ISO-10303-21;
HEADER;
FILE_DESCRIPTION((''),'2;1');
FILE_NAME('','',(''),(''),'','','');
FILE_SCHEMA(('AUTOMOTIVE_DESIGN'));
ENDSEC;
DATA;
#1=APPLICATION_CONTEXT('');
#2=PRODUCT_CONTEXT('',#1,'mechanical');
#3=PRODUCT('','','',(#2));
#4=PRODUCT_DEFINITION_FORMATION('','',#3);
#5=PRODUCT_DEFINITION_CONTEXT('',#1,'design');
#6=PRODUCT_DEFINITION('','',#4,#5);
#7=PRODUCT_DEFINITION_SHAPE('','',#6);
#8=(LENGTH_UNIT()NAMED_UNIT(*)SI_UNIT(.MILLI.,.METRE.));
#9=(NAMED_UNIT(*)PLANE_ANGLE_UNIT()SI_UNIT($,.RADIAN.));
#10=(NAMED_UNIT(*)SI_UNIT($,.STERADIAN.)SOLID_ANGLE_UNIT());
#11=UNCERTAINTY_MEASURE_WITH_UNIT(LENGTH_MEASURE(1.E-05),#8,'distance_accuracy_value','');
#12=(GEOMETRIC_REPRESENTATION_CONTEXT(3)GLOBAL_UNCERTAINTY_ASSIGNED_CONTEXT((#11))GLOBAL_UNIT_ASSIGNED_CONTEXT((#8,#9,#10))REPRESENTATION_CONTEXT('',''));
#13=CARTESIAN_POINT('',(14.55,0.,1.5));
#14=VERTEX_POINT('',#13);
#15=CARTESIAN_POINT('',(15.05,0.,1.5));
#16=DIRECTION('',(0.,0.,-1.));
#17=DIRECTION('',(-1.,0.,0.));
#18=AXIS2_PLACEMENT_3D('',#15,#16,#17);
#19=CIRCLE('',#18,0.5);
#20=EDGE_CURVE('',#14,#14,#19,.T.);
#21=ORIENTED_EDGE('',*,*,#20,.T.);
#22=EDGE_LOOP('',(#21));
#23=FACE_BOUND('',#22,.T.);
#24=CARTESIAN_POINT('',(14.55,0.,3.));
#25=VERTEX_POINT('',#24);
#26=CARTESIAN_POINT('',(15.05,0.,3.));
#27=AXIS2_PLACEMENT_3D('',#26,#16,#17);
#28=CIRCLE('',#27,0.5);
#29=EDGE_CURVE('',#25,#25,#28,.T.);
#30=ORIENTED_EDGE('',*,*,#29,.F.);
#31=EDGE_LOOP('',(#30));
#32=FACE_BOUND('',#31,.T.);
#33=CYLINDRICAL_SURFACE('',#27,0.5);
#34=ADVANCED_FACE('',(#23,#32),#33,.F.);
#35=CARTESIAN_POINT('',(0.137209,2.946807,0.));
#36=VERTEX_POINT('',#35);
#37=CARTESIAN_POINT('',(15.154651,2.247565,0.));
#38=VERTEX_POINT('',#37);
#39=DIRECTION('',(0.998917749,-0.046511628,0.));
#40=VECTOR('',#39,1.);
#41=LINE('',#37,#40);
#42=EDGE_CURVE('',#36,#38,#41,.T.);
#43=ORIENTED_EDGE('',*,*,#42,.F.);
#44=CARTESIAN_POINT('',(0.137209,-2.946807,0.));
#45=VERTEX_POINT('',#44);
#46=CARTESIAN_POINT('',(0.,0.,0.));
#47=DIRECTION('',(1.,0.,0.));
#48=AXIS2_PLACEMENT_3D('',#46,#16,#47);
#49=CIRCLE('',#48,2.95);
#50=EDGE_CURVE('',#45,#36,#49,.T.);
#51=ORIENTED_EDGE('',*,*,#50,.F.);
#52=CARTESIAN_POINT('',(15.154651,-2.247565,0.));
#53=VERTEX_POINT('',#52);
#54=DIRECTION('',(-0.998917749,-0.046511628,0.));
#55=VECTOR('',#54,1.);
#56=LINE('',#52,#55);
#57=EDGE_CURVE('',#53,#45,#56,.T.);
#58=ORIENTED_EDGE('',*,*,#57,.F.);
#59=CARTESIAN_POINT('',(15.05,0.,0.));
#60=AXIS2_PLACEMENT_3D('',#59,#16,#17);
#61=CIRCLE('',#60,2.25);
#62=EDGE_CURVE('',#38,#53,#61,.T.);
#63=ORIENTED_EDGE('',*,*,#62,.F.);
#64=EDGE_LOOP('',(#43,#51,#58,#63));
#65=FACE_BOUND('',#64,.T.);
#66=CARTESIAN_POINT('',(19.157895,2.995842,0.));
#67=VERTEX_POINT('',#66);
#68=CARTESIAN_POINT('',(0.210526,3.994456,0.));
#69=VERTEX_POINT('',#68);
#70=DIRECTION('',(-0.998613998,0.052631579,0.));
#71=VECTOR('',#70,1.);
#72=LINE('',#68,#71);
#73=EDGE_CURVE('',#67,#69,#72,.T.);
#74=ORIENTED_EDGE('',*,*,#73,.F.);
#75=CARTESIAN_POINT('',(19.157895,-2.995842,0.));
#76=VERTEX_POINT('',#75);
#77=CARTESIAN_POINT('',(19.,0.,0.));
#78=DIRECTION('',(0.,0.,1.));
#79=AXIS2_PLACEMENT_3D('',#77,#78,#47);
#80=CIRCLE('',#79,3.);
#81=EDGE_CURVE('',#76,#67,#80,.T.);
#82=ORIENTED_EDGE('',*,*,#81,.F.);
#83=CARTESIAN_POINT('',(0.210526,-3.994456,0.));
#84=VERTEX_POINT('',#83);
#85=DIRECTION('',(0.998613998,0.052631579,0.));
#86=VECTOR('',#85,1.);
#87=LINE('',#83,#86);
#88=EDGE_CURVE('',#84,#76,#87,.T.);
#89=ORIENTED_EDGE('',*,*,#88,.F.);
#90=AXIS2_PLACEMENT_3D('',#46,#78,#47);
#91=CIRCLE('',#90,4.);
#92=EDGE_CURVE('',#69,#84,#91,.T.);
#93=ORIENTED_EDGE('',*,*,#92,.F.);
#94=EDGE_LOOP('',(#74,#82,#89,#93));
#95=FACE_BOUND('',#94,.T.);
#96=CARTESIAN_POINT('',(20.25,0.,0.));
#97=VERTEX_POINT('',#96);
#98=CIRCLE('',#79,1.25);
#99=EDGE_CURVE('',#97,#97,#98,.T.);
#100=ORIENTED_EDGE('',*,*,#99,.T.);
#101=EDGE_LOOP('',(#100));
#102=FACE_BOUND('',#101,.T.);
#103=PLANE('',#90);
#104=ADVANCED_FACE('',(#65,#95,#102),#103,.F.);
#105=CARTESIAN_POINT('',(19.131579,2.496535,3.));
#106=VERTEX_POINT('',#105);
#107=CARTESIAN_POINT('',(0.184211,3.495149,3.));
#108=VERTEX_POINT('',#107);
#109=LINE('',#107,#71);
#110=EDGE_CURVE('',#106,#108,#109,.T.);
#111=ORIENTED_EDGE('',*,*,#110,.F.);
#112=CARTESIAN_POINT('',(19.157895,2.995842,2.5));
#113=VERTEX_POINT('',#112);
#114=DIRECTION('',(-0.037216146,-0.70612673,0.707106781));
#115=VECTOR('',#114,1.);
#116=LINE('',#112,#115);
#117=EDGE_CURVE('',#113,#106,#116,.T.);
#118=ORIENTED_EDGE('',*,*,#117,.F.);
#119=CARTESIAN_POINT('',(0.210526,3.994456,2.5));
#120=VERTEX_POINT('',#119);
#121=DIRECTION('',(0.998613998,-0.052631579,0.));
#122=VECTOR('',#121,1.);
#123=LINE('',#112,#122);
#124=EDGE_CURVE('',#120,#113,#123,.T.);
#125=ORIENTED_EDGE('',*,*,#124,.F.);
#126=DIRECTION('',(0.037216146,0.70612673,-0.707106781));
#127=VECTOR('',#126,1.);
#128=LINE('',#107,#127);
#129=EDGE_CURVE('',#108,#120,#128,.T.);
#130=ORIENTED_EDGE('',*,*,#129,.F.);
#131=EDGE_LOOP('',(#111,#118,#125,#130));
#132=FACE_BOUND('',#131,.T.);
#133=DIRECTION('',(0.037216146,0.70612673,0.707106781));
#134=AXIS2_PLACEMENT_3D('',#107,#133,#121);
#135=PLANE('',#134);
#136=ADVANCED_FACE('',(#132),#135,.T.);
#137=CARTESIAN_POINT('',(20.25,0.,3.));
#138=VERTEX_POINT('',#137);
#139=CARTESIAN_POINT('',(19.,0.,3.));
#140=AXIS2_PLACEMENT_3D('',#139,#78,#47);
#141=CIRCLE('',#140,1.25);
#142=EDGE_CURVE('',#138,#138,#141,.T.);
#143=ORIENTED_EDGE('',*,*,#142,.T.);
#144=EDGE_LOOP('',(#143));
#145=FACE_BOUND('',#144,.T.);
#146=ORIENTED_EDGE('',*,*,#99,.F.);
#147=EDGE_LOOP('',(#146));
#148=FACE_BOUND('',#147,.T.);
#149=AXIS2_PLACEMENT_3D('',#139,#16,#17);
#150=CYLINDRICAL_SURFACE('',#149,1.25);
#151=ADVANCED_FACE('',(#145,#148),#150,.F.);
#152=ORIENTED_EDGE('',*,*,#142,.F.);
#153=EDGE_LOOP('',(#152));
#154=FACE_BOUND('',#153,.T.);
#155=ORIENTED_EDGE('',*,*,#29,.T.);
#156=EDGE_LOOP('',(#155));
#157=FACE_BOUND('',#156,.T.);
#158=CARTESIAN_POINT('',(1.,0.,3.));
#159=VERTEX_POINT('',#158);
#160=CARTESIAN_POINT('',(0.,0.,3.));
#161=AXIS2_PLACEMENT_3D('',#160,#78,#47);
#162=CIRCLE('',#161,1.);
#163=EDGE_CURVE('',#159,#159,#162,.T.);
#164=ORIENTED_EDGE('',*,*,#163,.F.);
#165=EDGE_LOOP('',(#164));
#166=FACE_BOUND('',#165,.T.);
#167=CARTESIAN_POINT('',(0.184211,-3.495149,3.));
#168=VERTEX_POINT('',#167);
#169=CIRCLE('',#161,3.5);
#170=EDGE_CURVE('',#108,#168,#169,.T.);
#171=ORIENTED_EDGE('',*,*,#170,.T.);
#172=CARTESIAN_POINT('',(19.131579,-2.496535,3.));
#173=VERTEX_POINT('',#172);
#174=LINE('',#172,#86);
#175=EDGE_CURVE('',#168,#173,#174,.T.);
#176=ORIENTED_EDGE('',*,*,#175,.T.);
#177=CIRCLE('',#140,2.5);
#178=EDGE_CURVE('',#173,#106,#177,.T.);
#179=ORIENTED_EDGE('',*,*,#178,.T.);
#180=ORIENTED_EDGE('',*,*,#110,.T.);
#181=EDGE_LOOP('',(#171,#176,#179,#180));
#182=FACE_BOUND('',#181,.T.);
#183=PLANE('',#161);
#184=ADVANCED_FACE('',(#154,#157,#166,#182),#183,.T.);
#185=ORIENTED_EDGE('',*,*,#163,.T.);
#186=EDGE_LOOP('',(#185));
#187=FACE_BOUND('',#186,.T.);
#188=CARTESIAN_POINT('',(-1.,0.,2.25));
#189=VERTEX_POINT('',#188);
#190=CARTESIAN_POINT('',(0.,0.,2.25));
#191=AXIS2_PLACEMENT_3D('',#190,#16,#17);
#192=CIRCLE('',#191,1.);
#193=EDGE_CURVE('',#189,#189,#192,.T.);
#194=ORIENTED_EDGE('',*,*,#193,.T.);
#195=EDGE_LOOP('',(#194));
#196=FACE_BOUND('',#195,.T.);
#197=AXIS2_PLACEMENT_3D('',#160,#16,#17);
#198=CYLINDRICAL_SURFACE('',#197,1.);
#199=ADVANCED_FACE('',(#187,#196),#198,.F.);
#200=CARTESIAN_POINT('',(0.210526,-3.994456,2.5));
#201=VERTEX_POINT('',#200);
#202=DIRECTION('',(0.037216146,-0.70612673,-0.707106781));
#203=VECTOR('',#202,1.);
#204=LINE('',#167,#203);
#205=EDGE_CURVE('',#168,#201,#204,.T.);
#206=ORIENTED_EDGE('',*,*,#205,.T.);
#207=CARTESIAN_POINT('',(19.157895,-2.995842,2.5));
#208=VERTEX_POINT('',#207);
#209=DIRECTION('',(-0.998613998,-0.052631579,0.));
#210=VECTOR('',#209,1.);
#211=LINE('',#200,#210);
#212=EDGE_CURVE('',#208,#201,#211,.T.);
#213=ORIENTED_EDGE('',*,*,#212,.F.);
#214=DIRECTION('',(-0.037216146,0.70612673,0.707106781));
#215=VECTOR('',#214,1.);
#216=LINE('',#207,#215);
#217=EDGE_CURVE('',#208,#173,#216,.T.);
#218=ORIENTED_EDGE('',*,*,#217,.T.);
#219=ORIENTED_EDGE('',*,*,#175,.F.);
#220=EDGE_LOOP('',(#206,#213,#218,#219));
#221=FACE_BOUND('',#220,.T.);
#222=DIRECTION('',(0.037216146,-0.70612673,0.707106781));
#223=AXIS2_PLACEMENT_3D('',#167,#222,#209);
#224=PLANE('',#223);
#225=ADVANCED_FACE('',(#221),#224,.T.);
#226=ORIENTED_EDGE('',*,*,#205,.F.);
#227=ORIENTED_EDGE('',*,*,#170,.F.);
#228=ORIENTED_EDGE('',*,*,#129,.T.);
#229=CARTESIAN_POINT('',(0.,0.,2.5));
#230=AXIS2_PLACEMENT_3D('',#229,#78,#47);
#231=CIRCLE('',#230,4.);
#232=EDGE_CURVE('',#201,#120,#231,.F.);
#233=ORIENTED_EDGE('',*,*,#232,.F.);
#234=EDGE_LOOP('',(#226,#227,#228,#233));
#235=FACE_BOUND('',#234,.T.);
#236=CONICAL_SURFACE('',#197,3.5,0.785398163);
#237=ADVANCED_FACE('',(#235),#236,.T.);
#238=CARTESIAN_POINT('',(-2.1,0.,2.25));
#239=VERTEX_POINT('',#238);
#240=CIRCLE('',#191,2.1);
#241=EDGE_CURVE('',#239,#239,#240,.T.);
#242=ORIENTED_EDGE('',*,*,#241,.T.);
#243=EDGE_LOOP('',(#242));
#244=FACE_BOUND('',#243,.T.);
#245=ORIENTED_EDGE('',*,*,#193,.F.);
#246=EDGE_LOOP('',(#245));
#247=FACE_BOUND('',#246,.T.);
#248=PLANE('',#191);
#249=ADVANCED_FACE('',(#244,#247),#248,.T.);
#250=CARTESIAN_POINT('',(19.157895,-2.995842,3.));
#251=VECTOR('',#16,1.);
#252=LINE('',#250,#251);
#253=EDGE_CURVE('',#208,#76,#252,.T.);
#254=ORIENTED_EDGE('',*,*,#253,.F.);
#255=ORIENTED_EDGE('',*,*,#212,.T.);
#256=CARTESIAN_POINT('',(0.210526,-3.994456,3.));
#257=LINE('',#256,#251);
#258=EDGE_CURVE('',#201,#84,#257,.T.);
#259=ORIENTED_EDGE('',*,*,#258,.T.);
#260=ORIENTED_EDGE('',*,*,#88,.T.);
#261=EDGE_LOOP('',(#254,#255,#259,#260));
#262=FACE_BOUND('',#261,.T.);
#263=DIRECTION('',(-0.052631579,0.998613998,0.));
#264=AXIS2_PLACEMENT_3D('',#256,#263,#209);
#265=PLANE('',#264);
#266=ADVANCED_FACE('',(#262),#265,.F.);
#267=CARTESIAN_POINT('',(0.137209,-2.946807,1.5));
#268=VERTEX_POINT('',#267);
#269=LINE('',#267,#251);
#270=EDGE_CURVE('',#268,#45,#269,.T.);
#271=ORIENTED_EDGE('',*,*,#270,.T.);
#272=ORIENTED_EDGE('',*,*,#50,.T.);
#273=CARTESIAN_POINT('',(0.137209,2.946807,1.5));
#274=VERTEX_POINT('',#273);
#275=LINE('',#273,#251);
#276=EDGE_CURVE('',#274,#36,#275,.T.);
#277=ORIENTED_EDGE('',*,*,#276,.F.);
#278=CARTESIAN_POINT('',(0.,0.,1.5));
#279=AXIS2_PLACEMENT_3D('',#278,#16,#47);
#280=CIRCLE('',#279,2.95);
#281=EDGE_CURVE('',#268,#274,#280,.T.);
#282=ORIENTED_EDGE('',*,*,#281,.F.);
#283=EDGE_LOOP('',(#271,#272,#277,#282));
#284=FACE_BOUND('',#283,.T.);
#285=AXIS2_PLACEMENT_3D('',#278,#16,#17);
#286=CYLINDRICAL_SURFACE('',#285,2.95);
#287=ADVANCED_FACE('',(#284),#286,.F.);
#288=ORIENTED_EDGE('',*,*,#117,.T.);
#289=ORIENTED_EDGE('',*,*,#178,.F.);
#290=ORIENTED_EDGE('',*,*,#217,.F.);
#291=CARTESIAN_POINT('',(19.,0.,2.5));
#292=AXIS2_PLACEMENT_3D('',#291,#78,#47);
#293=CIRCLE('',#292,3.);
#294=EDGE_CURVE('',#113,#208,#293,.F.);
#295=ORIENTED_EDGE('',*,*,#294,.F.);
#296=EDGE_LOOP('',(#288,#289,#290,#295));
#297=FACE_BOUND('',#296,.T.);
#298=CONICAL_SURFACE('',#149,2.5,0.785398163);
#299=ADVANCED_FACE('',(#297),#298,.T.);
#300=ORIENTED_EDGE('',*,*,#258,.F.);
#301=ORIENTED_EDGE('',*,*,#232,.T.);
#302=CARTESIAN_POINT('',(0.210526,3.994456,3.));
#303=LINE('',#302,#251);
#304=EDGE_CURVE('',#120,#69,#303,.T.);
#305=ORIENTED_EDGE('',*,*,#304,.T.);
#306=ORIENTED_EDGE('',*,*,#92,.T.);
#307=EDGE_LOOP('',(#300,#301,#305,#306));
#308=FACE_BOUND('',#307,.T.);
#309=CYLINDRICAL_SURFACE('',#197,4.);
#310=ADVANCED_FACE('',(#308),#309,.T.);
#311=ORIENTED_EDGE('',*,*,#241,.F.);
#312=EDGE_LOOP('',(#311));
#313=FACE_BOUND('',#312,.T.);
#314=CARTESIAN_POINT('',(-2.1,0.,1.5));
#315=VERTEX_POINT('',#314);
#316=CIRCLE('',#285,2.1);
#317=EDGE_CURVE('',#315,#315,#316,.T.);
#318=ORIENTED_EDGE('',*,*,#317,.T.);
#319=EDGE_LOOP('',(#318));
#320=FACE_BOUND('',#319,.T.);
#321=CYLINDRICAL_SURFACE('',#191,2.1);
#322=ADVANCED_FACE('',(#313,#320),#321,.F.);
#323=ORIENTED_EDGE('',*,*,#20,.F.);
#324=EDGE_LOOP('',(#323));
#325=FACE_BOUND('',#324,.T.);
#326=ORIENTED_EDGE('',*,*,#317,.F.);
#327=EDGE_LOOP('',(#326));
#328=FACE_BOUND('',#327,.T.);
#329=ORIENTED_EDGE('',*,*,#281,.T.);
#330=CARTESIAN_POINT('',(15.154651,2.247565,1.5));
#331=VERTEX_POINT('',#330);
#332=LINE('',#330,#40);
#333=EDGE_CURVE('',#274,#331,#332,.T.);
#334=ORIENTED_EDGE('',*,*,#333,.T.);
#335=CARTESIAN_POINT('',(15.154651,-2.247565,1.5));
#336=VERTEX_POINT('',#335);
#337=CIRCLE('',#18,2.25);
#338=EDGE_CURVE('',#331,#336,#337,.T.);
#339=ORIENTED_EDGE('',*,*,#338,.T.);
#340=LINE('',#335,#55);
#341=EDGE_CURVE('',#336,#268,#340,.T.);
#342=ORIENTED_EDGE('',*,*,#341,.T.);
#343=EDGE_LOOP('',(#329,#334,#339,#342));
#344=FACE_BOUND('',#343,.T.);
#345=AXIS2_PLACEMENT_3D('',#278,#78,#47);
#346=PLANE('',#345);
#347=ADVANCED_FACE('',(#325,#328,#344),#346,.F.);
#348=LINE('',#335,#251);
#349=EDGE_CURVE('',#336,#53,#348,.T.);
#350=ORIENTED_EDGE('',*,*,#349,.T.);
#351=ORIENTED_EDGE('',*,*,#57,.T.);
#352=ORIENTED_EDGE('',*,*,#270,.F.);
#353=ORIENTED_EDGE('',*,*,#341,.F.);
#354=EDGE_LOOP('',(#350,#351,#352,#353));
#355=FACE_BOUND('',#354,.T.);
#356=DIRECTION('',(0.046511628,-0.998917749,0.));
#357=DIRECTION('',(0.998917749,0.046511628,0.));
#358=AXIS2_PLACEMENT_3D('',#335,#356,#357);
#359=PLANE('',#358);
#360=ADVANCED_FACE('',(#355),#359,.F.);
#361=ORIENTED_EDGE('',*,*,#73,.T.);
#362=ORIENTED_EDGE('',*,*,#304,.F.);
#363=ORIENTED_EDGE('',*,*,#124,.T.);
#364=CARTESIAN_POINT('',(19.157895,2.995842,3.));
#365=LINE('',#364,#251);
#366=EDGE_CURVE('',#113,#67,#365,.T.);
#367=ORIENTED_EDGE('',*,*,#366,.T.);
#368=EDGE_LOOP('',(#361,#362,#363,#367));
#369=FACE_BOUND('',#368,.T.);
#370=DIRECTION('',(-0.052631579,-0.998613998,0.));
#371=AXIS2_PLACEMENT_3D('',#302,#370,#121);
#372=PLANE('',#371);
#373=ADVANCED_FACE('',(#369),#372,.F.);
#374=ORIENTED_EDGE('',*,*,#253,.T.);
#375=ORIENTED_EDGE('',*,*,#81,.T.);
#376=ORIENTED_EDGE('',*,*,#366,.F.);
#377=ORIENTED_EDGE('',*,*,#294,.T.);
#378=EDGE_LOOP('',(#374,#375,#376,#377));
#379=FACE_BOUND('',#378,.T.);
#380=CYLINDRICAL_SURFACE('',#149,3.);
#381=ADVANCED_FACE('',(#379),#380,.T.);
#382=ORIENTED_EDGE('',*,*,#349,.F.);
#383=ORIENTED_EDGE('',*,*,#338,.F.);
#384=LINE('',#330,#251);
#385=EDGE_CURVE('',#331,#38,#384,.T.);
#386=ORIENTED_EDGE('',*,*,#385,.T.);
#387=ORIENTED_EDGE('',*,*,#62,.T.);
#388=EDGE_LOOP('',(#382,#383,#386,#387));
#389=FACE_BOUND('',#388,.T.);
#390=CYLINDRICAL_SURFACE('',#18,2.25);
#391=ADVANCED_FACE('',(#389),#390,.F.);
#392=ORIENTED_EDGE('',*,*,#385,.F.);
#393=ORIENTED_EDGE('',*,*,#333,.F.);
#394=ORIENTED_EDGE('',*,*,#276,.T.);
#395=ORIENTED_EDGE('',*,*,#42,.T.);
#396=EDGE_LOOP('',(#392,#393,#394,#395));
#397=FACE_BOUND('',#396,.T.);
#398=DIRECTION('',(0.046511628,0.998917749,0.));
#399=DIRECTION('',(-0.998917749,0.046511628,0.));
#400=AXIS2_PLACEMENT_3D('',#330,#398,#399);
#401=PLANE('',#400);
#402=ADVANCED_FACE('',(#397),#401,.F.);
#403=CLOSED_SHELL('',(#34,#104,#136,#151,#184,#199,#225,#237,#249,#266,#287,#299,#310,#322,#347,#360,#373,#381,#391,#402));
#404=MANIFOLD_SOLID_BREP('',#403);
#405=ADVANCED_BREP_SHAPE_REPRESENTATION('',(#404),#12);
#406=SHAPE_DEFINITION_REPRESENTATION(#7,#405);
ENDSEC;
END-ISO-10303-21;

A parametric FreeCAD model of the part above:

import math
import FreeCAD as App
import Part
import Sketcher
from FreeCAD import Vector


def edges_at(feature, points):
    """Names of the edges that pass closest to the given points."""
    edges = feature.Shape.Edges
    near = lambda p: min(range(len(edges)), key=lambda i: edges[i].distToShape(Part.Vertex(*p))[0])
    return sorted({f"Edge{near(p) + 1}" for p in points})

doc = App.newDocument("Part")
body = doc.addObject("PartDesign::Body", "Body")

# Sketch on XY plane
sketch1 = body.newObject("Sketcher::SketchObject", "Sketch")
sketch1.AttachmentSupport = (doc.getObject("XY_Plane"), [""])
sketch1.MapMode = "FlatFace"
sketch1.addGeometry([
    Part.LineSegment(Vector(19.2, 3, 0), Vector(0.2, 4, 0)),  # 0
    Part.ArcOfCircle(Part.Circle(Vector(0, 0, 0), Vector(0, 0, 1), 4), math.radians(87), math.radians(273)),  # 1
    Part.LineSegment(Vector(0.2, -4, 0), Vector(19.2, -3, 0)),  # 2
    Part.ArcOfCircle(Part.Circle(Vector(19, 0, 0), Vector(0, 0, 1), 3), math.radians(-87), math.radians(87)),  # 3
    Part.Circle(Vector(19, 0, 0), Vector(0, 0, 1), 1.2),  # 4
    Part.Circle(Vector(0, 0, 0), Vector(0, 0, 1), 1),  # 5
], False)
sketch1.addConstraint([
    Sketcher.Constraint("Tangent", 0, 2, 1, 1),
    Sketcher.Constraint("Tangent", 1, 2, 2, 1),
    Sketcher.Constraint("Tangent", 2, 2, 3, 1),
    Sketcher.Constraint("Tangent", 3, 2, 0, 1),
    Sketcher.Constraint("Coincident", 1, 3, -1, 1),
    Sketcher.Constraint("Coincident", 5, 3, -1, 1),
    Sketcher.Constraint("Coincident", 4, 3, 3, 3),
    Sketcher.Constraint("PointOnObject", 3, 3, -1),
    Sketcher.Constraint("Diameter", 5, 2.0),
    Sketcher.Constraint("Radius", 1, 4.0),
    Sketcher.Constraint("Radius", 3, 3.0),
    Sketcher.Constraint("Diameter", 4, 2.5),
    Sketcher.Constraint("DistanceX", -1, 1, 3, 3, 19.0),
])
pad1 = body.newObject("PartDesign::Pad", "Pad")
pad1.Profile = sketch1
pad1.Length = 3

# Sketch on XY plane
sketch2 = body.newObject("Sketcher::SketchObject", "Sketch001")
sketch2.AttachmentSupport = (doc.getObject("XY_Plane"), [""])
sketch2.MapMode = "FlatFace"
sketch2.addGeometry([
    Part.LineSegment(Vector(0.1, 2.9, 0), Vector(15.2, 2.2, 0)),
    Part.ArcOfCircle(Part.Circle(Vector(15.1, 0, 0), Vector(0, 0, 1), 2.2), math.radians(-87), math.radians(87)),
    Part.LineSegment(Vector(15.2, -2.2, 0), Vector(0.1, -2.9, 0)),
    Part.ArcOfCircle(Part.Circle(Vector(0, 0, 0), Vector(0, 0, 1), 3), math.radians(87), math.radians(273)),
], False)
sketch2.addConstraint([
    Sketcher.Constraint("Tangent", 0, 2, 1, 2),
    Sketcher.Constraint("Tangent", 1, 1, 2, 1),
    Sketcher.Constraint("Tangent", 2, 2, 3, 2),
    Sketcher.Constraint("Tangent", 3, 1, 0, 1),
    Sketcher.Constraint("Coincident", 3, 3, -1, 1),
    Sketcher.Constraint("PointOnObject", 1, 3, -1),
    Sketcher.Constraint("Radius", 1, 2.25),
    Sketcher.Constraint("Radius", 3, 2.95),
    Sketcher.Constraint("DistanceX", -1, 1, 1, 3, 15.05),
])
pocket1 = body.newObject("PartDesign::Pocket", "Pocket")
pocket1.Profile = sketch2
pocket1.Length = 1.5
pocket1.Reversed = True

# Sketch on XY plane
sketch3 = body.newObject("Sketcher::SketchObject", "Sketch002")
sketch3.AttachmentSupport = (doc.getObject("XY_Plane"), [""])
sketch3.MapMode = "FlatFace"
sketch3.AttachmentOffset = App.Placement(Vector(0, 0, 1.5), App.Rotation())
sketch3.addGeometry(Part.Circle(Vector(0, 0, 0), Vector(0, 0, 1), 2.1), False)
sketch3.addConstraint([
    Sketcher.Constraint("Coincident", 0, 3, -1, 1),
    Sketcher.Constraint("Diameter", 0, 4.2),
])
pocket2 = body.newObject("PartDesign::Pocket", "Pocket001")
pocket2.Profile = sketch3
pocket2.Length = 0.75
pocket2.Reversed = True

# Sketch on XY plane
sketch4 = body.newObject("Sketcher::SketchObject", "Sketch003")
sketch4.AttachmentSupport = (doc.getObject("XY_Plane"), [""])
sketch4.MapMode = "FlatFace"
sketch4.AttachmentOffset = App.Placement(Vector(0, 0, 1.5), App.Rotation())
sketch4.addGeometry(Part.Circle(Vector(15.1, 0, 0), Vector(0, 0, 1), 0.5), False)
sketch4.addConstraint([
    Sketcher.Constraint("PointOnObject", 0, 3, -1),
    Sketcher.Constraint("Diameter", 0, 1.0),
    Sketcher.Constraint("DistanceX", -1, 1, 0, 3, 15.05),
])
pocket3 = body.newObject("PartDesign::Pocket", "Pocket002")
pocket3.Profile = sketch4
pocket3.Type = "ThroughAll"
pocket3.Reversed = True
doc.recompute()

chamfer = body.newObject("PartDesign::Chamfer", "Chamfer")
chamfer.Base = (pocket3, edges_at(pocket3, [
    (22, 0, 3),
    (9.684, 3.495, 3),
    (-4, 0, 3),
    (9.684, -3.495, 3),
]))
chamfer.Size = 0.5

doc.recompute()
